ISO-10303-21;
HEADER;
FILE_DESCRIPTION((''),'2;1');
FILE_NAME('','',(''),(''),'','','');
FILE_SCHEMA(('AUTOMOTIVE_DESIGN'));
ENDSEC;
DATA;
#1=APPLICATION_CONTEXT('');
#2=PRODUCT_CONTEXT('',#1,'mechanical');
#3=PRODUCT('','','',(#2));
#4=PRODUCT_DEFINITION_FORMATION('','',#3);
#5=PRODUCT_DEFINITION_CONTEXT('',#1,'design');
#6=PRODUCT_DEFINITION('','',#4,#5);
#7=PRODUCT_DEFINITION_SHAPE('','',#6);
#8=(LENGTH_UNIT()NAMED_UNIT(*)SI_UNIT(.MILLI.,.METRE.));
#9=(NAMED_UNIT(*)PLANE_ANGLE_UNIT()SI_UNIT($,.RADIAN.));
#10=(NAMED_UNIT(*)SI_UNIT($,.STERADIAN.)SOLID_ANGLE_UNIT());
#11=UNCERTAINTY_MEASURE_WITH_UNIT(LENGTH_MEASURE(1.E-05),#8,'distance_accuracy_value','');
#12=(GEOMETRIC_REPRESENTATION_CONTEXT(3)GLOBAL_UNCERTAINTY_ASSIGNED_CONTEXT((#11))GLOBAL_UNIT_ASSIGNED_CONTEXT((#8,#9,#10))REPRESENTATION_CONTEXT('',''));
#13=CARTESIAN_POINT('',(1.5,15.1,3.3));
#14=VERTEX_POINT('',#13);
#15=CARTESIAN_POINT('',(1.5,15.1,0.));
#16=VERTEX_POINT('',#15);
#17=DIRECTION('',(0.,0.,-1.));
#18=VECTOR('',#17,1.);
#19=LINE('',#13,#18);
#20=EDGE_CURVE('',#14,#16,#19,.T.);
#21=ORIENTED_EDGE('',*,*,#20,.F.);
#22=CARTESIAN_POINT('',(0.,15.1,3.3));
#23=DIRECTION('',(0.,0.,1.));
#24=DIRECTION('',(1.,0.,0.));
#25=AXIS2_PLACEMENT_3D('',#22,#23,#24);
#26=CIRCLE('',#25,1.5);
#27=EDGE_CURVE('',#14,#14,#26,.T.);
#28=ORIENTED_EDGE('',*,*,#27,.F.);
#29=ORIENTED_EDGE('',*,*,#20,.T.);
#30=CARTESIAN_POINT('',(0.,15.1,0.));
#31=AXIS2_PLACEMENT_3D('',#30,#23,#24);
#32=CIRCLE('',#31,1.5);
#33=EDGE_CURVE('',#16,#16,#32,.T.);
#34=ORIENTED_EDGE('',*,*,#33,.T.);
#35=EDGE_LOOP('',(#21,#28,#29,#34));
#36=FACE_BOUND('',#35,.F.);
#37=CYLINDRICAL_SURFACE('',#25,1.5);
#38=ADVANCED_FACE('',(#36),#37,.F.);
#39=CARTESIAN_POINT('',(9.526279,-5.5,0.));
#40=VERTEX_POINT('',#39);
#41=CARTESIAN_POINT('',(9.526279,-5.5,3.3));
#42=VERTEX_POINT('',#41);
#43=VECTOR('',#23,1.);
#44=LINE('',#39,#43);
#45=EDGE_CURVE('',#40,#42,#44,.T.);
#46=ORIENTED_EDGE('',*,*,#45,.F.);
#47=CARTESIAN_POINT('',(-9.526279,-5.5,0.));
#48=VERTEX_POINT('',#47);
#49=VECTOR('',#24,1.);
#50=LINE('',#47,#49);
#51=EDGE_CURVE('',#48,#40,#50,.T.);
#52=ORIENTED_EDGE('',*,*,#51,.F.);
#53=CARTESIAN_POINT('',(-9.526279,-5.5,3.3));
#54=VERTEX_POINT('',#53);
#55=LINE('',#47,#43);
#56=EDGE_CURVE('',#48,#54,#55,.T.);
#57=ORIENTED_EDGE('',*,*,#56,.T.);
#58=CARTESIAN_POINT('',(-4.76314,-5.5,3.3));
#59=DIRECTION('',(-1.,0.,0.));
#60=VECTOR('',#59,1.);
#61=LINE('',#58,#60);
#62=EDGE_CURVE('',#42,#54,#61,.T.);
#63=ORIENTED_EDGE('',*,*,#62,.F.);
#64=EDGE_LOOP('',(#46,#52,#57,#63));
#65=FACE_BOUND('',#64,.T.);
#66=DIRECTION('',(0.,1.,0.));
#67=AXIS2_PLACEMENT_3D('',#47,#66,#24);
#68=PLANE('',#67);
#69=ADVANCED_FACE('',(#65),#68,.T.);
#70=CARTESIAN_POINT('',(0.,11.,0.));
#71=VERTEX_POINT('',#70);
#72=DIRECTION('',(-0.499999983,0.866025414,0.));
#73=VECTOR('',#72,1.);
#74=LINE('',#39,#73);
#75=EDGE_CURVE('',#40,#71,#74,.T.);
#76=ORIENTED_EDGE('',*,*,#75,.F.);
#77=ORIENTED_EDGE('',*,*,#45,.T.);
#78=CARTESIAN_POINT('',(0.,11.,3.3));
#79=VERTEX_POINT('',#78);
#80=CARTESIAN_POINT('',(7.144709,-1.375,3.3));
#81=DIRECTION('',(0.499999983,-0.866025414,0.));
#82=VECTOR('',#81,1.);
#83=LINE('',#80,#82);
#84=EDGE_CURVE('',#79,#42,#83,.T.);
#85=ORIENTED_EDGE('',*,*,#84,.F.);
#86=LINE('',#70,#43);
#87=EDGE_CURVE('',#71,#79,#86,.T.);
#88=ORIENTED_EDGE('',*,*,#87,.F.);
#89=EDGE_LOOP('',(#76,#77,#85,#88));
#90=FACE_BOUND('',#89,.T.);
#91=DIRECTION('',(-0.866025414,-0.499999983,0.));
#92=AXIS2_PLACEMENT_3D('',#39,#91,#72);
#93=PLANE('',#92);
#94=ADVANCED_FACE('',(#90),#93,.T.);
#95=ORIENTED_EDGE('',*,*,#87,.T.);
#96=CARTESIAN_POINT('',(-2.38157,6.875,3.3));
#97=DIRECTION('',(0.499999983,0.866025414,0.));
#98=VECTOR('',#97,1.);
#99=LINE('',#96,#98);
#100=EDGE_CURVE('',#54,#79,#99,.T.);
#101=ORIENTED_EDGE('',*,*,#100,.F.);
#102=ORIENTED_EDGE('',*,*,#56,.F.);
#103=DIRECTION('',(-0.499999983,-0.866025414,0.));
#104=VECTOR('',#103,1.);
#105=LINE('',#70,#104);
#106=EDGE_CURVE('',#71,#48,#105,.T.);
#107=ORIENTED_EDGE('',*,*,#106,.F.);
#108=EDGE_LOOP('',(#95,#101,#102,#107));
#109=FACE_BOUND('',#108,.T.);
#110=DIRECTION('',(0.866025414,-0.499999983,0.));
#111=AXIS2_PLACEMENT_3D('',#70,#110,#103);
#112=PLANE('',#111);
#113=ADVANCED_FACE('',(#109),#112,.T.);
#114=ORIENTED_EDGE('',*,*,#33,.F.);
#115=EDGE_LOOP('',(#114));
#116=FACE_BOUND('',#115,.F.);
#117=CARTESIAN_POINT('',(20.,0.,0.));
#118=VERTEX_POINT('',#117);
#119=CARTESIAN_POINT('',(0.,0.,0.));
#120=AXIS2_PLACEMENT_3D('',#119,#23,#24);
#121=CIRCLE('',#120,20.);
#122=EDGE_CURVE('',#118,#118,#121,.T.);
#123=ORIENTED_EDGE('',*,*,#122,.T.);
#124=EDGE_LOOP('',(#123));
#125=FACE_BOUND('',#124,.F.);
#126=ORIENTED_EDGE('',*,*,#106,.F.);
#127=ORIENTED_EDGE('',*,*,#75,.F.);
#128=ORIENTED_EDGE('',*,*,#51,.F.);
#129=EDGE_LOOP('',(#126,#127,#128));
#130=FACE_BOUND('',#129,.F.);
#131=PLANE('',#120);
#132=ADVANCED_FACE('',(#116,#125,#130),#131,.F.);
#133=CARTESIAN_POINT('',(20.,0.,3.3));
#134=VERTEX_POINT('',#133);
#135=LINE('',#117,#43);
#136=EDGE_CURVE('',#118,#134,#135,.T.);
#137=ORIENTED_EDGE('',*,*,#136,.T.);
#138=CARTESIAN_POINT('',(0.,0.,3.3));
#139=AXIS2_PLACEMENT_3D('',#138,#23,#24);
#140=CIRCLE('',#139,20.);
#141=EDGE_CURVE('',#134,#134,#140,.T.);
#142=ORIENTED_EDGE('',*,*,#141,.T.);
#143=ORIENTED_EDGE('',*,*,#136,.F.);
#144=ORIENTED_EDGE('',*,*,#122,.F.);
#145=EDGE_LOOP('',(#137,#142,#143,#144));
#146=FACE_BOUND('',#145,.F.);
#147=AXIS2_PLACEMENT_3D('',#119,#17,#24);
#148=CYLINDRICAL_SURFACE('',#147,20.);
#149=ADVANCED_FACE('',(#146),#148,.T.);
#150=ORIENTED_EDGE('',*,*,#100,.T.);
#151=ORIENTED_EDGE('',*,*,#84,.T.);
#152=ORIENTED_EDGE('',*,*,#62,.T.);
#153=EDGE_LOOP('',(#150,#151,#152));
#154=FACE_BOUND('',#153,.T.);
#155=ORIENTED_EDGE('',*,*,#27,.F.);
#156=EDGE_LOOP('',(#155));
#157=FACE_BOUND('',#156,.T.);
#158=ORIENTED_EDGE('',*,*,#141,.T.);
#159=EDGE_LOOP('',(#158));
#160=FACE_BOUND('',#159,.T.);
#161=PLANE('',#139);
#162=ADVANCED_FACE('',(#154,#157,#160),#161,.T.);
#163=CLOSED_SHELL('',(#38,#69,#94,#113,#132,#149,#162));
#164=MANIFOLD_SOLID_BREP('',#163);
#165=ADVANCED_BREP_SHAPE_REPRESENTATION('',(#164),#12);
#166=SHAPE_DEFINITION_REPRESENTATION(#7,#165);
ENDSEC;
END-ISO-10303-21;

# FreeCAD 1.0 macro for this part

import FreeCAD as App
import Part
import Sketcher
Q = App.Units.Quantity


def add_polygon(sketch, points):
    """Adds a closed chain of lines whose ends are joined by coincident constraints."""
    first, n = sketch.GeometryCount, len(points)
    for a, b in zip(points, points[1:] + points[:1]):
        sketch.addGeometry(Part.LineSegment(App.Vector(*a, 0), App.Vector(*b, 0)), False)
    for i in range(n):
        sketch.addConstraint(Sketcher.Constraint("Coincident", first + i, 2, first + (i + 1) % n, 1))

doc = App.newDocument("Part")
body = doc.addObject("PartDesign::Body", "Body")

sketch1 = body.newObject("Sketcher::SketchObject", "Sketch")
sketch1.AttachmentSupport = (doc.getObject("XY_Plane"), [""])
sketch1.MapMode = "FlatFace"
sketch1.addGeometry(Part.Circle(App.Vector(0, 0, 0), App.Vector(0, 0, 1), 20), False)
sketch1.addConstraint(Sketcher.Constraint("Coincident", 0, 3, -1, 1))
sketch1.addConstraint(Sketcher.Constraint("Diameter", 0, 40.0))
pad1 = body.newObject("PartDesign::Pad", "Pad")
pad1.Profile = sketch1
pad1.Length = 3.3

sketch2 = body.newObject("Sketcher::SketchObject", "Sketch001")
sketch2.AttachmentSupport = (doc.getObject("XY_Plane"), [""])
sketch2.MapMode = "FlatFace"
sketch2.AttachmentOffset = App.Placement(App.Vector(0, 0, 3.3), App.Rotation())
sketch2.addGeometry(Part.Circle(App.Vector(0, 15.1, 0), App.Vector(0, 0, 1), 1.5), False)
sketch2.addConstraint(Sketcher.Constraint("PointOnObject", 0, 3, -2))
sketch2.addConstraint(Sketcher.Constraint("Diameter", 0, 3.0))
sketch2.addConstraint(Sketcher.Constraint("DistanceY", -1, 1, 0, 3, 15.1))
pocket1 = body.newObject("PartDesign::Pocket", "Pocket")
pocket1.Profile = sketch2
pocket1.Type = "ThroughAll"

sketch3 = body.newObject("Sketcher::SketchObject", "Sketch002")
sketch3.AttachmentSupport = (doc.getObject("XY_Plane"), [""])
sketch3.MapMode = "FlatFace"
add_polygon(sketch3, [(10, -6), (-10, -6), (0, 11)])
sketch3.addConstraint(Sketcher.Constraint("Horizontal", 0))
sketch3.addConstraint(Sketcher.Constraint("PointOnObject", 1, 2, -2))
sketch3.addConstraint(Sketcher.Constraint("Equal", 1, 2))
sketch3.addConstraint(Sketcher.Constraint("Angle", 1, Q("60.000001 deg")))
sketch3.addConstraint(Sketcher.Constraint("DistanceY", -1, 1, 1, 2, 11.0))
sketch3.addConstraint(Sketcher.Constraint("DistanceY", 0, 2, -1, 1, 5.5))
pocket2 = body.newObject("PartDesign::Pocket", "Pocket001")
pocket2.Profile = sketch3
pocket2.Type = "ThroughAll"
pocket2.Reversed = True

doc.recompute()
